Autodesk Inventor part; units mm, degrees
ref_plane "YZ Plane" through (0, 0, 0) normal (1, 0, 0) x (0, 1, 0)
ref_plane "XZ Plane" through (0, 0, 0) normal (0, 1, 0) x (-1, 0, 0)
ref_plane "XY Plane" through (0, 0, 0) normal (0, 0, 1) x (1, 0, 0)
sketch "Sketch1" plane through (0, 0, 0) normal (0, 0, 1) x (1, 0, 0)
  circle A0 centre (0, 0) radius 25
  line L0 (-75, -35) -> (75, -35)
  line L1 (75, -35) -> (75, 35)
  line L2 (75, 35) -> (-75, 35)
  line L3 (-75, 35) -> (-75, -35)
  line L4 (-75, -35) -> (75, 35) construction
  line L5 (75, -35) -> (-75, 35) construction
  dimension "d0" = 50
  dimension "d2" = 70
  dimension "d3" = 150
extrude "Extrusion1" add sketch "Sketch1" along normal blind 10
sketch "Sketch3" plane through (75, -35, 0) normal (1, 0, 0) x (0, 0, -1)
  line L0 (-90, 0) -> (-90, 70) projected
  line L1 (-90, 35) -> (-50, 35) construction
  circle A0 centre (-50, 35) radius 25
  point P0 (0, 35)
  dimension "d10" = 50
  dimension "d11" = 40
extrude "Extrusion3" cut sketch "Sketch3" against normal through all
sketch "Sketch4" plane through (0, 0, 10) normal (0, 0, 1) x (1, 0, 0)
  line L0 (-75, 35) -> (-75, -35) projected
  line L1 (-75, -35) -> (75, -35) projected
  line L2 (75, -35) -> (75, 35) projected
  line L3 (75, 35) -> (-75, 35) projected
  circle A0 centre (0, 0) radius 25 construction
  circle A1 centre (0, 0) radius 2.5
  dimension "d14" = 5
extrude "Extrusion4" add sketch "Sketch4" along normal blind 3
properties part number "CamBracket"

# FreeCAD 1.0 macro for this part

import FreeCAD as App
import Part
import Sketcher
Q = App.Units.Quantity

doc = App.newDocument("Part")
params = doc.addObject("Spreadsheet::Sheet", "Params")
for row, (alias, value) in enumerate([
    ("sketch1_diameter", "50 mm"),
    ("sketch1_width", "150 mm"),
    ("sketch1_height", "70 mm"),
    ("pad1_length", "10 mm"),
    ("sketch2_diameter", "50 mm"),
    ("sketch3_diameter", "5 mm"),
    ("sketch3_width", "150 mm"),
    ("sketch3_height", "70 mm"),
    ("pad2_length", "3 mm"),
], start=1):
    params.set(f"A{row}", alias)
    params.set(f"B{row}", "=" + value)
    params.setAlias(f"B{row}", alias)

body = doc.addObject("PartDesign::Body", "Body")

# Sketch on XY plane
sketch1 = doc.addObject("Sketcher::SketchObject", "Sketch")
body.addObject(sketch1)
sketch1.AttachmentSupport = (doc.XY_Plane, [""])
sketch1.MapMode = "FlatFace"
sketch1.addGeometry([
    Part.LineSegment(App.Vector(-75, 35, 0), App.Vector(-75, -35, 0)),  # 0
    Part.LineSegment(App.Vector(-75, -35, 0), App.Vector(75, -35, 0)),  # 1
    Part.LineSegment(App.Vector(75, -35, 0), App.Vector(75, 35, 0)),  # 2
    Part.LineSegment(App.Vector(75, 35, 0), App.Vector(-75, 35, 0)),  # 3
    Part.Circle(App.Vector(0, 0, 0), App.Vector(0, 0, 1), 25),  # 4
], False)
sketch1.addConstraint([
    Sketcher.Constraint("Coincident", 0, 2, 1, 1),
    Sketcher.Constraint("Coincident", 1, 2, 2, 1),
    Sketcher.Constraint("Coincident", 2, 2, 3, 1),
    Sketcher.Constraint("Coincident", 3, 2, 0, 1),
    Sketcher.Constraint("Vertical", 0),
    Sketcher.Constraint("Horizontal", 1),
    Sketcher.Constraint("Vertical", 2),
    Sketcher.Constraint("Horizontal", 3),
    Sketcher.Constraint("Coincident", 4, 3, -1, 1),
    Sketcher.Constraint("Symmetric", 0, 2, 2, 2, -1, 1),
    Sketcher.Constraint("Diameter", 4, Q("50 mm")),
    Sketcher.Constraint("DistanceX", 1, 1, 1, 2, Q("150 mm")),
    Sketcher.Constraint("DistanceY", 0, 2, 0, 1, Q("70 mm")),
])
sketch1.setExpression("Constraints[10]", "Params.sketch1_diameter")
sketch1.setExpression("Constraints[11]", "Params.sketch1_width")
sketch1.setExpression("Constraints[12]", "Params.sketch1_height")
pad1 = doc.addObject("PartDesign::Pad", "Pad")
body.addObject(pad1)
pad1.Profile = sketch1
pad1.setExpression("Length", "Params.pad1_length")

# Sketch on YZ plane
sketch2 = doc.addObject("Sketcher::SketchObject", "Sketch001")
body.addObject(sketch2)
sketch2.AttachmentSupport = (doc.YZ_Plane, [""])
sketch2.MapMode = "FlatFace"
sketch2.AttachmentOffset = App.Placement(App.Vector(0, 0, 75), App.Rotation())
sketch2.addGeometry(Part.Circle(App.Vector(0, 50, 0), App.Vector(0, 0, 1), 25), False)
sketch2.addConstraint([
    Sketcher.Constraint("PointOnObject", 0, 3, -2),
    Sketcher.Constraint("Diameter", 0, Q("50 mm")),
    Sketcher.Constraint("DistanceY", -1, 1, 0, 3, Q("50 mm")),
])
sketch2.setExpression("Constraints[1]", "Params.sketch2_diameter")
pocket1 = doc.addObject("PartDesign::Pocket", "Pocket")
body.addObject(pocket1)
pocket1.Profile = sketch2
pocket1.Type = "ThroughAll"

# Sketch on XY plane
sketch3 = doc.addObject("Sketcher::SketchObject", "Sketch002")
body.addObject(sketch3)
sketch3.AttachmentSupport = (doc.XY_Plane, [""])
sketch3.MapMode = "FlatFace"
sketch3.AttachmentOffset = App.Placement(App.Vector(0, 0, 10), App.Rotation())
sketch3.addGeometry([
    Part.LineSegment(App.Vector(75, 35, 0), App.Vector(-75, 35, 0)),  # 0
    Part.LineSegment(App.Vector(-75, 35, 0), App.Vector(-75, -35, 0)),  # 1
    Part.LineSegment(App.Vector(-75, -35, 0), App.Vector(75, -35, 0)),  # 2
    Part.LineSegment(App.Vector(75, -35, 0), App.Vector(75, 35, 0)),  # 3
    Part.Circle(App.Vector(0, 0, 0), App.Vector(0, 0, 1), 2.5),  # 4
], False)
sketch3.addConstraint([
    Sketcher.Constraint("Coincident", 0, 2, 1, 1),
    Sketcher.Constraint("Coincident", 1, 2, 2, 1),
    Sketcher.Constraint("Coincident", 2, 2, 3, 1),
    Sketcher.Constraint("Coincident", 3, 2, 0, 1),
    Sketcher.Constraint("Horizontal", 0),
    Sketcher.Constraint("Vertical", 1),
    Sketcher.Constraint("Horizontal", 2),
    Sketcher.Constraint("Vertical", 3),
    Sketcher.Constraint("Coincident", 4, 3, -1, 1),
    Sketcher.Constraint("Symmetric", 0, 2, 2, 2, -1, 1),
    Sketcher.Constraint("Diameter", 4, Q("5 mm")),
    Sketcher.Constraint("DistanceX", 0, 2, 0, 1, Q("150 mm")),
    Sketcher.Constraint("DistanceY", 1, 2, 1, 1, Q("70 mm")),
])
sketch3.setExpression("Constraints[10]", "Params.sketch3_diameter")
sketch3.setExpression("Constraints[11]", "Params.sketch3_width")
sketch3.setExpression("Constraints[12]", "Params.sketch3_height")
pad2 = doc.addObject("PartDesign::Pad", "Pad001")
body.addObject(pad2)
pad2.Profile = sketch3
pad2.setExpression("Length", "Params.pad2_length")

doc.recompute()
